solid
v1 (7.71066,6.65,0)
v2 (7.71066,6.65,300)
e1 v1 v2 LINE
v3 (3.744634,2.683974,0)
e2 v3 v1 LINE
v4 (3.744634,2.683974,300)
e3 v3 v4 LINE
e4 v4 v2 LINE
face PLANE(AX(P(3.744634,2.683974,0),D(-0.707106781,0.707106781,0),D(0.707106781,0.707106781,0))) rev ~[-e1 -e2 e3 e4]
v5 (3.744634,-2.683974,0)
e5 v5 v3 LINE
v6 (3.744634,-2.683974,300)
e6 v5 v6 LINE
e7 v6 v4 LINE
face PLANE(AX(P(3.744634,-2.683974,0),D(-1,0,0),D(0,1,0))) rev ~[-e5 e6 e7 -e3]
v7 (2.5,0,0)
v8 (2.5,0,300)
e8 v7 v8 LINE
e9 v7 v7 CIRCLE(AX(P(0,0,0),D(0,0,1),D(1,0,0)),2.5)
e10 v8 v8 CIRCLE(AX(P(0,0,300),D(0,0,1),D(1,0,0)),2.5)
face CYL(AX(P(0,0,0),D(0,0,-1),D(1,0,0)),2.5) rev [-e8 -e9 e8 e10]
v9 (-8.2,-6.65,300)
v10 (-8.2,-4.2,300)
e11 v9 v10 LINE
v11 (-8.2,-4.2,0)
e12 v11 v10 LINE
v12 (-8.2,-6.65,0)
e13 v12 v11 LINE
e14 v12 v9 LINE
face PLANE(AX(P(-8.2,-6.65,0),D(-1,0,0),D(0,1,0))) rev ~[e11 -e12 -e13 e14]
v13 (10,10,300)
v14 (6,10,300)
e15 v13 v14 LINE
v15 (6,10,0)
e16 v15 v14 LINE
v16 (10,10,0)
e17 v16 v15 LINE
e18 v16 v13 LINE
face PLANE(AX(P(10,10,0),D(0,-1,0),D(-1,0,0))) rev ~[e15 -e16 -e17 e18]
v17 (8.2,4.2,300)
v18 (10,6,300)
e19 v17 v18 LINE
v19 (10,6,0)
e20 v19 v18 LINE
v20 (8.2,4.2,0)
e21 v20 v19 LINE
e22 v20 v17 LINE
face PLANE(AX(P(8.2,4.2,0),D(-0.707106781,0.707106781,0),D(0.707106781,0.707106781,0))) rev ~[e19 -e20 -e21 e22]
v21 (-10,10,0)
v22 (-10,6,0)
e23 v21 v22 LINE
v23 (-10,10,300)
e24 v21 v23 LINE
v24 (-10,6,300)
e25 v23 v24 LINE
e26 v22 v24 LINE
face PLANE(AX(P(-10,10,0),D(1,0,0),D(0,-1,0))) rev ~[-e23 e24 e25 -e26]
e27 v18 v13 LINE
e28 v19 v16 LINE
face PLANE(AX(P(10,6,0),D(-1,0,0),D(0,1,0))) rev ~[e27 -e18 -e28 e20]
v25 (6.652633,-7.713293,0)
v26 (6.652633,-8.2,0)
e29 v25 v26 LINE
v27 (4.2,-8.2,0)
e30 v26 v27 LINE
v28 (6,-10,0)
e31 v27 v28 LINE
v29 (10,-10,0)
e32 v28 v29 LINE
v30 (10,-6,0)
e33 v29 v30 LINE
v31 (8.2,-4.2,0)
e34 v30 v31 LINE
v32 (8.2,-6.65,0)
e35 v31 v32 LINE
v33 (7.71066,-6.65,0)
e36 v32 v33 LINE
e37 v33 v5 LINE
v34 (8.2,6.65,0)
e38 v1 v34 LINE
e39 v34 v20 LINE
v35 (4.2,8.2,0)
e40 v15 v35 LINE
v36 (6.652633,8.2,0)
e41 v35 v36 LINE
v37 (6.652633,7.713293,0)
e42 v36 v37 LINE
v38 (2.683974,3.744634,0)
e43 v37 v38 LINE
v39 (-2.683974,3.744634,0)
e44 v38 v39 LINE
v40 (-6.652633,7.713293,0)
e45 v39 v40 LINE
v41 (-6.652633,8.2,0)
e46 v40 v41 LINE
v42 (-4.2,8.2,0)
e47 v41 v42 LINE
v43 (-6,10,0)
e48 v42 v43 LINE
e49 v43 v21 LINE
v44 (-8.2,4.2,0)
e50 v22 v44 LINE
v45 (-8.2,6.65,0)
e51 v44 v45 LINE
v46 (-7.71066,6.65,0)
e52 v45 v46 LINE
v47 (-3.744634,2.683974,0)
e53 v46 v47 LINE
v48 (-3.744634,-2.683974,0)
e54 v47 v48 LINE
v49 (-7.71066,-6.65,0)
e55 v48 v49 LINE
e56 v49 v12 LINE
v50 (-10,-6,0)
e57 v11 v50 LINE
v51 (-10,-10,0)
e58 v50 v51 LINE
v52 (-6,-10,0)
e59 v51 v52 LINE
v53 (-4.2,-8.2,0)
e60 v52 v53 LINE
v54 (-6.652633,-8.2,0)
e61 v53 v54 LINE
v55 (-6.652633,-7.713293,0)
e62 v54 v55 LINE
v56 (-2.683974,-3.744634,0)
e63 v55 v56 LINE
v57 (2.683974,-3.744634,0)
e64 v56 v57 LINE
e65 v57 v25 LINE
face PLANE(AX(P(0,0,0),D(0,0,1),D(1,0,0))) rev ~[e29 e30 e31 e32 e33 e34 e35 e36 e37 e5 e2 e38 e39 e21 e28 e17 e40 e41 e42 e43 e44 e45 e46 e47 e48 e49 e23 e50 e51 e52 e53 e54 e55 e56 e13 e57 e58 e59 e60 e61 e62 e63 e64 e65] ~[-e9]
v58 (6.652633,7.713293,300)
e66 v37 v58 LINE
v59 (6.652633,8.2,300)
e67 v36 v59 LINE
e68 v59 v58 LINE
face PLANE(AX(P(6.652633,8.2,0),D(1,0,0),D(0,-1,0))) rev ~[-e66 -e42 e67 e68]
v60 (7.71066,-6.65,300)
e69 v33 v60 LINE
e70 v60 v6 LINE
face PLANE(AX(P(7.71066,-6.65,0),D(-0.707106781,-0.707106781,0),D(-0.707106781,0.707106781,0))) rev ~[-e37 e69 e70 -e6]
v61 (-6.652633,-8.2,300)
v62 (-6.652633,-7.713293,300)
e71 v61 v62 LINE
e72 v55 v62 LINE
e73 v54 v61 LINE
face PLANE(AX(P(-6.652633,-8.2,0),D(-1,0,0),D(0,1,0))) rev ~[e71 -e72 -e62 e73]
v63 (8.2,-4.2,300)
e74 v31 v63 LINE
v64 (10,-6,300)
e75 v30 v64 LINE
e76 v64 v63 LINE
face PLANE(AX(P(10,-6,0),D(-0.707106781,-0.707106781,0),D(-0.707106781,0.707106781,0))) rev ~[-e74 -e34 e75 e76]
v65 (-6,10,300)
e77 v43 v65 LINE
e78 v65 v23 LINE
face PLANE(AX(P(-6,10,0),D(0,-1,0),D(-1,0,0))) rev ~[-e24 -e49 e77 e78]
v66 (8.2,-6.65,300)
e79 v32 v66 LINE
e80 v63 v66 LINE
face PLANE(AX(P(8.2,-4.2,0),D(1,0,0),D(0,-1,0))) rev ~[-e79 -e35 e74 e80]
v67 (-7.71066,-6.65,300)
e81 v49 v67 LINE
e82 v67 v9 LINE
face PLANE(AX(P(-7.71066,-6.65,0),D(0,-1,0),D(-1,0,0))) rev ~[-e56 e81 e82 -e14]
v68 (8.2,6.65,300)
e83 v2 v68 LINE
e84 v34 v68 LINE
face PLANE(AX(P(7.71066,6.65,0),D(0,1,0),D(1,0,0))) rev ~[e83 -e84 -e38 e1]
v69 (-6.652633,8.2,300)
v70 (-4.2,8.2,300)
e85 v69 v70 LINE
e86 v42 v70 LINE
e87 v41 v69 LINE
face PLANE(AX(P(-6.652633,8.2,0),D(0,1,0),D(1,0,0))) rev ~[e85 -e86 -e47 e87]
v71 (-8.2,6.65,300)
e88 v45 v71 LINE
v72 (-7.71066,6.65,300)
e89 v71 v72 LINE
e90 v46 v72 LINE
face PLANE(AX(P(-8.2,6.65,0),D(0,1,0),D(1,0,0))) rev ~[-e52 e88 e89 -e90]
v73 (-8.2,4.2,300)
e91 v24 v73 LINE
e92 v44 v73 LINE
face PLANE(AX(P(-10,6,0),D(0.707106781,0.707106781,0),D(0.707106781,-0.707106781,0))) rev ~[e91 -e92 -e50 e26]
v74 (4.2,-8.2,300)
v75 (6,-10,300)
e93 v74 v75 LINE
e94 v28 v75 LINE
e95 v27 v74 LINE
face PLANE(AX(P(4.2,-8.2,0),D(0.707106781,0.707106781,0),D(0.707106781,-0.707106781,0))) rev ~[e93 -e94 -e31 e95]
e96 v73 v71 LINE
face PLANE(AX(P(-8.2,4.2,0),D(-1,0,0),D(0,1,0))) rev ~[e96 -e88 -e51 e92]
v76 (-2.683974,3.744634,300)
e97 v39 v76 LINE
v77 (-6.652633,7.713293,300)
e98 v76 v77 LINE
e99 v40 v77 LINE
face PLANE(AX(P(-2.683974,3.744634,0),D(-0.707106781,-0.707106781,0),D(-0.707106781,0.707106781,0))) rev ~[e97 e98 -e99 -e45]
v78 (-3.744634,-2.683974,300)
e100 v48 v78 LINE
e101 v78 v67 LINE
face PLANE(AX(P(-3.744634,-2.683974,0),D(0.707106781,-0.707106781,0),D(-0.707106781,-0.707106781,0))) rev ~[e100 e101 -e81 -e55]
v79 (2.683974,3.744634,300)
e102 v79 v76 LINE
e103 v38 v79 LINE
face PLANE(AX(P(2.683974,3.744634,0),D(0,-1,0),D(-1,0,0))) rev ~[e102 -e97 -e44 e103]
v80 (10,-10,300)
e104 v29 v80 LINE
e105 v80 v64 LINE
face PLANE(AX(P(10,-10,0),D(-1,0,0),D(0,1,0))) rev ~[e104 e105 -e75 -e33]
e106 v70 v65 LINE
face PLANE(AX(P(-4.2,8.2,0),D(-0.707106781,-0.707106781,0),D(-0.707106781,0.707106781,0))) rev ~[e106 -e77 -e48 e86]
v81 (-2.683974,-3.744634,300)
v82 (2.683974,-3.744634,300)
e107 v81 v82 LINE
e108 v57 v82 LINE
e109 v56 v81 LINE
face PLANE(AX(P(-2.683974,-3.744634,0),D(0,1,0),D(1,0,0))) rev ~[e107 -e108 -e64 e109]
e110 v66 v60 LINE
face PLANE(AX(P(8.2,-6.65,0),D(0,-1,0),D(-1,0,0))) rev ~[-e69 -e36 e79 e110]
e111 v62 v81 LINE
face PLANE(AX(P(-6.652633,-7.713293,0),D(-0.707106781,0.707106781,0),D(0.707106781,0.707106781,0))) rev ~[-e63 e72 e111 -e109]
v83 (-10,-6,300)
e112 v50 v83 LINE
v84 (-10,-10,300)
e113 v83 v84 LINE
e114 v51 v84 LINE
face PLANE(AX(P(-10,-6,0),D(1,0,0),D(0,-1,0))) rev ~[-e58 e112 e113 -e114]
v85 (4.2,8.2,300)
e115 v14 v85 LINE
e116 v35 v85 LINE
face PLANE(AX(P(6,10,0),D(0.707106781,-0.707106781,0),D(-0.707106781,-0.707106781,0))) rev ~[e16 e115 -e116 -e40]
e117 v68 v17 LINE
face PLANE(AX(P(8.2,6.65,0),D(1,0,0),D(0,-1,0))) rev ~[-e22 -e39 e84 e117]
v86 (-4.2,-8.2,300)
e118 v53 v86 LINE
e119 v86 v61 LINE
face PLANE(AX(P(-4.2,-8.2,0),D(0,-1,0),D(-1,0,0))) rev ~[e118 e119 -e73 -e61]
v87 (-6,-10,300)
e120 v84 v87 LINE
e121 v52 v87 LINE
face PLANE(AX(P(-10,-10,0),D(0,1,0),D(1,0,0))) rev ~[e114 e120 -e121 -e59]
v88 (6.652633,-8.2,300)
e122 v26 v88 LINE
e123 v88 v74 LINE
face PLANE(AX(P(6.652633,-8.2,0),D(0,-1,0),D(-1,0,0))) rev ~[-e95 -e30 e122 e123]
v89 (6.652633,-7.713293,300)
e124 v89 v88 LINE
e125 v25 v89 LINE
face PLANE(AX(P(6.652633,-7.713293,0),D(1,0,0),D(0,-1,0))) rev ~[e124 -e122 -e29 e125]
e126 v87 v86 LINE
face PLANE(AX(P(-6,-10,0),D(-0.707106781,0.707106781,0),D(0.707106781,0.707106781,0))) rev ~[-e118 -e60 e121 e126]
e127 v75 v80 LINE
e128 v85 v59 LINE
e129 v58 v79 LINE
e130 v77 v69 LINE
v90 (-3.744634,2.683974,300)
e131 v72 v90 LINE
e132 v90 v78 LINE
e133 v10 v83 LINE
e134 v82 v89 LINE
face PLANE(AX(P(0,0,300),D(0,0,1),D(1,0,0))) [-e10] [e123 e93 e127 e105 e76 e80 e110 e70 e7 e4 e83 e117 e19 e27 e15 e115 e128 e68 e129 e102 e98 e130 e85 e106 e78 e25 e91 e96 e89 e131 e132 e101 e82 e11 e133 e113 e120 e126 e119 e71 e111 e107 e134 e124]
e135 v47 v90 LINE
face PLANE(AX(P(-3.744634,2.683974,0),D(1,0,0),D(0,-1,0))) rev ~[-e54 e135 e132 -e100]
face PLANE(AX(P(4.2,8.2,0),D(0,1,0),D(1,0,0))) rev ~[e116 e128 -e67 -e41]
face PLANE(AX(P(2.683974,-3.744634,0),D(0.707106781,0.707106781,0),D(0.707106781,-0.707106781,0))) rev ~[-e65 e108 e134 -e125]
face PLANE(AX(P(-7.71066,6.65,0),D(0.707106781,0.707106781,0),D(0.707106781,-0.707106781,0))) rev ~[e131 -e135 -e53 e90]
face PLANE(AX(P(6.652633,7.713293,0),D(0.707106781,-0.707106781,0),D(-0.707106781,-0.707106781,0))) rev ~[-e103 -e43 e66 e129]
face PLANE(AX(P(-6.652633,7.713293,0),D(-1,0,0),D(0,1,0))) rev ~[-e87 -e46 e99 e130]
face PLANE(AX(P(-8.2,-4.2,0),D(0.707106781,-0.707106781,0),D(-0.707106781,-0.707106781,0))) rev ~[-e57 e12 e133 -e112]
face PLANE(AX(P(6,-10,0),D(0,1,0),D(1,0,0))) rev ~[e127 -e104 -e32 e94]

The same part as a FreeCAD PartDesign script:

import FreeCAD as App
import Part
import Sketcher
from FreeCAD import Vector
Q = App.Units.Quantity


def add_polygon(sketch, points):
    """Adds a closed chain of lines whose ends are joined by coincident constraints."""
    first, n = sketch.GeometryCount, len(points)
    for a, b in zip(points, points[1:] + points[:1]):
        sketch.addGeometry(Part.LineSegment(App.Vector(*a, 0), App.Vector(*b, 0)), False)
    for i in range(n):
        sketch.addConstraint(Sketcher.Constraint("Coincident", first + i, 2, first + (i + 1) % n, 1))

doc = App.newDocument("Part")
body = doc.addObject("PartDesign::Body", "Body")

# Sketch on XY plane
sketch1 = doc.addObject("Sketcher::SketchObject", "Sketch")
body.addObject(sketch1)
sketch1.AttachmentSupport = (doc.XY_Plane, [""])
sketch1.MapMode = "FlatFace"
add_polygon(sketch1, [(-4.2, 8.2), (-6, 10), (-10, 10), (-10, 6), (-8.2, 4.2), (-8.2, 6.65), (-7.71, 6.65), (-3.74, 2.68), (-3.74, -2.68), (-7.71, -6.65), (-8.2, -6.65), (-8.2, -4.2), (-10, -6), (-10, -10), (-6, -10), (-4.2, -8.2), (-6.65, -8.2), (-6.65, -7.71), (-2.68, -3.74), (2.68, -3.74), (6.65, -7.71), (6.65, -8.2), (4.2, -8.2), (6, -10), (10, -10), (10, -6), (8.2, -4.2), (8.2, -6.65), (7.71, -6.65), (3.74, -2.68), (3.74, 2.68), (7.71, 6.65), (8.2, 6.65), (8.2, 4.2), (10, 6), (10, 10), (6, 10), (4.2, 8.2), (6.65, 8.2), (6.65, 7.71), (2.68, 3.74), (-2.68, 3.74), (-6.65, 7.71), (-6.65, 8.2)])  # lines 0-43
sketch1.addGeometry(Part.Circle(Vector(0, 0, 0), Vector(0, 0, 1), 2.5), False)  # 44
sketch1.addConstraint([
    Sketcher.Constraint("Horizontal", 1),
    Sketcher.Constraint("Vertical", 2),
    Sketcher.Constraint("Vertical", 4),
    Sketcher.Constraint("Horizontal", 5),
    Sketcher.Constraint("Vertical", 7),
    Sketcher.Constraint("Horizontal", 9),
    Sketcher.Constraint("Vertical", 10),
    Sketcher.Constraint("Vertical", 12),
    Sketcher.Constraint("Horizontal", 13),
    Sketcher.Constraint("Horizontal", 15),
    Sketcher.Constraint("Vertical", 16),
    Sketcher.Constraint("Horizontal", 18),
    Sketcher.Constraint("Vertical", 20),
    Sketcher.Constraint("Horizontal", 21),
    Sketcher.Constraint("Horizontal", 23),
    Sketcher.Constraint("Vertical", 24),
    Sketcher.Constraint("Vertical", 26),
    Sketcher.Constraint("Horizontal", 27),
    Sketcher.Constraint("Vertical", 29),
    Sketcher.Constraint("Horizontal", 31),
    Sketcher.Constraint("Vertical", 32),
    Sketcher.Constraint("Vertical", 34),
    Sketcher.Constraint("Horizontal", 35),
    Sketcher.Constraint("Horizontal", 37),
    Sketcher.Constraint("Vertical", 38),
    Sketcher.Constraint("Horizontal", 40),
    Sketcher.Constraint("Vertical", 42),
    Sketcher.Constraint("Horizontal", 43),
    Sketcher.Constraint("Coincident", 44, 3, -1, 1),
    Sketcher.Constraint("Symmetric", 0, 2, 22, 2, -1, 1),
    Sketcher.Constraint("Symmetric", 2, 2, 24, 2, -1, 1),
    Sketcher.Constraint("Symmetric", 3, 2, 25, 2, -1, 1),
    Sketcher.Constraint("Symmetric", 5, 2, 27, 2, -1, 1),
    Sketcher.Constraint("Symmetric", 6, 2, 28, 2, -1, 1),
    Sketcher.Constraint("Symmetric", 8, 2, 30, 2, -1, 1),
    Sketcher.Constraint("Symmetric", 10, 2, 32, 2, -1, 1),
    Sketcher.Constraint("Symmetric", 11, 2, 33, 2, -1, 1),
    Sketcher.Constraint("Symmetric", 13, 2, 35, 2, -1, 1),
    Sketcher.Constraint("Symmetric", 14, 2, 36, 2, -1, 1),
    Sketcher.Constraint("Symmetric", 16, 2, 38, 2, -1, 1),
    Sketcher.Constraint("Symmetric", 17, 2, 39, 2, -1, 1),
    Sketcher.Constraint("Symmetric", 19, 2, 41, 2, -1, 1),
    Sketcher.Constraint("Symmetric", 21, 2, 43, 2, -1, 1),
    Sketcher.Constraint("Symmetric", 16, 2, 19, 2, -2),
    Sketcher.Constraint("Symmetric", 14, 2, 21, 2, -2),
    Sketcher.Constraint("Symmetric", 13, 2, 22, 2, -2),
    Sketcher.Constraint("Symmetric", 11, 2, 24, 2, -2),
    Sketcher.Constraint("Symmetric", 10, 2, 25, 2, -2),
    Sketcher.Constraint("Symmetric", 8, 2, 27, 2, -2),
    Sketcher.Constraint("Parallel", 0, 3),
    Sketcher.Constraint("Parallel", 3, 6),
    Sketcher.Constraint("Perpendicular", 6, 8),
    Sketcher.Constraint("Parallel", 8, 11),
    Sketcher.Constraint("Parallel", 14, 17),
    Sketcher.Constraint("Perpendicular", 17, 19),
    Sketcher.Constraint("Perpendicular", 28, 30),
    Sketcher.Constraint("Perpendicular", 39, 41),
    Sketcher.Constraint("Equal", 35, 2),
    Sketcher.Constraint("Equal", 40, 7),
    Sketcher.Constraint("Equal", 0, 3),
    Sketcher.Constraint("Diameter", 44, Q("5 mm")),
    Sketcher.Constraint("DistanceX", 1, 2, 1, 1, Q("4 mm")),
    Sketcher.Constraint("DistanceX", 0, 2, -1, 1, Q("6 mm")),
    Sketcher.Constraint("DistanceY", -1, 1, 0, 2, Q("10 mm")),
    Sketcher.Constraint("DistanceY", 4, 1, 4, 2, Q("2.45 mm")),
    Sketcher.Constraint("DistanceX", 3, 2, -1, 1, Q("8.2 mm")),
    Sketcher.Constraint("DistanceX", 5, 1, 5, 2, Q("0.48934 mm")),
    Sketcher.Constraint("Distance", 6, Q("5.608808 mm")),
    Sketcher.Constraint("Distance", 17, Q("5.612531 mm")),
    Sketcher.Constraint("DistanceY", 16, 1, 16, 2, Q("0.486707 mm")),
])
pad1 = doc.addObject("PartDesign::Pad", "Pad")
body.addObject(pad1)
pad1.Profile = sketch1
pad1.Length = 300

doc.recompute()
